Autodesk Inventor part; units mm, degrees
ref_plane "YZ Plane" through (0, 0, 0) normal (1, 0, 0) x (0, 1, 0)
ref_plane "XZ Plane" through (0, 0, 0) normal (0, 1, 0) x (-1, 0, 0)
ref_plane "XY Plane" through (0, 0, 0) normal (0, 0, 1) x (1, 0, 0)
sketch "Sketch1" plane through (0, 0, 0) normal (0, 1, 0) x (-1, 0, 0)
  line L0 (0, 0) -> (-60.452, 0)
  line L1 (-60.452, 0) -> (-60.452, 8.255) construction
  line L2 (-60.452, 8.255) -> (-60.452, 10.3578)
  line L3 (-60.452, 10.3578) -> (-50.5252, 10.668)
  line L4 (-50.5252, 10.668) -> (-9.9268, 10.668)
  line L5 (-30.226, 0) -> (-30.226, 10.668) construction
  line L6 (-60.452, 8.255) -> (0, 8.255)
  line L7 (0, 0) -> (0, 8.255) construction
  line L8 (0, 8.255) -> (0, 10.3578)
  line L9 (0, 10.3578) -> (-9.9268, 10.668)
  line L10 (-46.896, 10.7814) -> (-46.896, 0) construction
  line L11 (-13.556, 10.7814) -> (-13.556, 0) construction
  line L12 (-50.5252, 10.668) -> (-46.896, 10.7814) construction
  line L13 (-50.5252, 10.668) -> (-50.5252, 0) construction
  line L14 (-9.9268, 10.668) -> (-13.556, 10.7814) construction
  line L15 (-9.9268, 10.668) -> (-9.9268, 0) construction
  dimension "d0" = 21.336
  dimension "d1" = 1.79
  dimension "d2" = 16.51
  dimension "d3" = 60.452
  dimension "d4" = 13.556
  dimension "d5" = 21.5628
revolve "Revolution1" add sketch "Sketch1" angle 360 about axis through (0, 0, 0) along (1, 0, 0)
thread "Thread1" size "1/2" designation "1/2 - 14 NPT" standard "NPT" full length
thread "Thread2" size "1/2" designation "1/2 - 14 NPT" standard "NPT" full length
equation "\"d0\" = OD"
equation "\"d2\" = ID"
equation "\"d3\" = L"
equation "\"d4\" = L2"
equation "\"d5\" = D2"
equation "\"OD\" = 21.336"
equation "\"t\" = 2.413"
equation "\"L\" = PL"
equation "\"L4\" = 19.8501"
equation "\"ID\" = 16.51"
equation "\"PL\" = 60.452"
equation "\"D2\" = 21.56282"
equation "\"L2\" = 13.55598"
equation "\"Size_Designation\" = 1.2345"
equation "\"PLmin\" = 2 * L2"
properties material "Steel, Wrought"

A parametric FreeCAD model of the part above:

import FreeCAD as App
import Part
import Sketcher

V = App.Vector
Q = App.Units.Quantity

doc = App.newDocument("Part")
body = doc.addObject("PartDesign::Body", "Body")

# Sketch on XZ plane
sketch1 = doc.addObject("Sketcher::SketchObject", "Sketch")
body.addObject(sketch1)
sketch1.AttachmentSupport = (doc.XZ_Plane, [""])
sketch1.MapMode = "FlatFace"
sketch1.addGeometry(Part.LineSegment(V(60.5, 10.4, 0), V(60.5, 8.3, 0)), False)
sketch1.addGeometry(Part.LineSegment(V(60.5, 8.3, 0), V(0, 8.3, 0)), False)
sketch1.addGeometry(Part.LineSegment(V(0, 8.3, 0), V(0, 10.4, 0)), False)
sketch1.addGeometry(Part.LineSegment(V(0, 10.4, 0), V(9.9, 10.7, 0)), False)
sketch1.addGeometry(Part.LineSegment(V(9.9, 10.7, 0), V(50.5, 10.7, 0)), False)
sketch1.addGeometry(Part.LineSegment(V(50.5, 10.7, 0), V(60.5, 10.4, 0)), False)
sketch1.addConstraint(Sketcher.Constraint("Coincident", 0, 2, 1, 1))
sketch1.addConstraint(Sketcher.Constraint("Coincident", 1, 2, 2, 1))
sketch1.addConstraint(Sketcher.Constraint("Coincident", 2, 2, 3, 1))
sketch1.addConstraint(Sketcher.Constraint("Coincident", 3, 2, 4, 1))
sketch1.addConstraint(Sketcher.Constraint("Coincident", 4, 2, 5, 1))
sketch1.addConstraint(Sketcher.Constraint("Coincident", 5, 2, 0, 1))
sketch1.addConstraint(Sketcher.Constraint("Vertical", 0))
sketch1.addConstraint(Sketcher.Constraint("Horizontal", 1))
sketch1.addConstraint(Sketcher.Constraint("Vertical", 2))
sketch1.addConstraint(Sketcher.Constraint("Horizontal", 4))
sketch1.addConstraint(Sketcher.Constraint("PointOnObject", 1, 2, -2))
sketch1.addConstraint(Sketcher.Constraint("Horizontal", 2, 2, 5, 2))
sketch1.addConstraint(Sketcher.Constraint("Equal", 3, 5))
sketch1.addConstraint(Sketcher.Constraint("DistanceX", 1, 2, 1, 1, Q("2.38 in")))
sketch1.addConstraint(Sketcher.Constraint("Angle", 3, Q("1.7898 deg")))
sketch1.addConstraint(Sketcher.Constraint("DistanceY", -1, 1, 3, 2, Q("0.42 in")))
sketch1.addConstraint(Sketcher.Constraint("Distance", 3, Q("0.391 in")))
sketch1.addConstraint(Sketcher.Constraint("DistanceY", -1, 1, 0, 2, Q("0.325 in")))
revolution = doc.addObject("PartDesign::Revolution", "Revolution")
body.addObject(revolution)
revolution.Profile = sketch1
revolution.ReferenceAxis = (sketch1, ["H_Axis"])
revolution.Angle = 360

doc.recompute()
